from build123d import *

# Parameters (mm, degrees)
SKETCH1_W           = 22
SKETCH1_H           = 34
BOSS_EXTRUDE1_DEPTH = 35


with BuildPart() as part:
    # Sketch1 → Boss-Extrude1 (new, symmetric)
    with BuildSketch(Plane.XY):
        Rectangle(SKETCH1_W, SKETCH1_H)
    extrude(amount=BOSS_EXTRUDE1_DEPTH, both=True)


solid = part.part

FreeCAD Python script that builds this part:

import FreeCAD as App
import Part
import Sketcher
from FreeCAD import Vector


def add_polygon(sketch, points):
    """Adds a closed chain of lines whose ends are joined by coincident constraints."""
    first, n = sketch.GeometryCount, len(points)
    for a, b in zip(points, points[1:] + points[:1]):
        sketch.addGeometry(Part.LineSegment(App.Vector(*a, 0), App.Vector(*b, 0)), False)
    for i in range(n):
        sketch.addConstraint(Sketcher.Constraint("Coincident", first + i, 2, first + (i + 1) % n, 1))

doc = App.newDocument("Part")
body = doc.addObject("PartDesign::Body", "Body")

sketch1 = doc.addObject("Sketcher::SketchObject", "Sketch")
body.addObject(sketch1)
sketch1.AttachmentSupport = (doc.XY_Plane, [""])
sketch1.MapMode = "FlatFace"
add_polygon(sketch1, [(-11, 17), (-11, -17), (11, -17), (11, 17)])
sketch1.addConstraint(Sketcher.Constraint("Vertical", 0))
sketch1.addConstraint(Sketcher.Constraint("Horizontal", 1))
sketch1.addConstraint(Sketcher.Constraint("Vertical", 2))
sketch1.addConstraint(Sketcher.Constraint("Horizontal", 3))
sketch1.addConstraint(Sketcher.Constraint("Symmetric", 0, 2, 2, 2, -1, 1))
sketch1.addConstraint(Sketcher.Constraint("DistanceX", 1, 1, 1, 2, 22.0))
sketch1.addConstraint(Sketcher.Constraint("DistanceY", 0, 2, 0, 1, 34.0))
pad1 = doc.addObject("PartDesign::Pad", "Pad")
body.addObject(pad1)
pad1.Profile = sketch1
pad1.Length = 70
pad1.Midplane = True

doc.recompute()
